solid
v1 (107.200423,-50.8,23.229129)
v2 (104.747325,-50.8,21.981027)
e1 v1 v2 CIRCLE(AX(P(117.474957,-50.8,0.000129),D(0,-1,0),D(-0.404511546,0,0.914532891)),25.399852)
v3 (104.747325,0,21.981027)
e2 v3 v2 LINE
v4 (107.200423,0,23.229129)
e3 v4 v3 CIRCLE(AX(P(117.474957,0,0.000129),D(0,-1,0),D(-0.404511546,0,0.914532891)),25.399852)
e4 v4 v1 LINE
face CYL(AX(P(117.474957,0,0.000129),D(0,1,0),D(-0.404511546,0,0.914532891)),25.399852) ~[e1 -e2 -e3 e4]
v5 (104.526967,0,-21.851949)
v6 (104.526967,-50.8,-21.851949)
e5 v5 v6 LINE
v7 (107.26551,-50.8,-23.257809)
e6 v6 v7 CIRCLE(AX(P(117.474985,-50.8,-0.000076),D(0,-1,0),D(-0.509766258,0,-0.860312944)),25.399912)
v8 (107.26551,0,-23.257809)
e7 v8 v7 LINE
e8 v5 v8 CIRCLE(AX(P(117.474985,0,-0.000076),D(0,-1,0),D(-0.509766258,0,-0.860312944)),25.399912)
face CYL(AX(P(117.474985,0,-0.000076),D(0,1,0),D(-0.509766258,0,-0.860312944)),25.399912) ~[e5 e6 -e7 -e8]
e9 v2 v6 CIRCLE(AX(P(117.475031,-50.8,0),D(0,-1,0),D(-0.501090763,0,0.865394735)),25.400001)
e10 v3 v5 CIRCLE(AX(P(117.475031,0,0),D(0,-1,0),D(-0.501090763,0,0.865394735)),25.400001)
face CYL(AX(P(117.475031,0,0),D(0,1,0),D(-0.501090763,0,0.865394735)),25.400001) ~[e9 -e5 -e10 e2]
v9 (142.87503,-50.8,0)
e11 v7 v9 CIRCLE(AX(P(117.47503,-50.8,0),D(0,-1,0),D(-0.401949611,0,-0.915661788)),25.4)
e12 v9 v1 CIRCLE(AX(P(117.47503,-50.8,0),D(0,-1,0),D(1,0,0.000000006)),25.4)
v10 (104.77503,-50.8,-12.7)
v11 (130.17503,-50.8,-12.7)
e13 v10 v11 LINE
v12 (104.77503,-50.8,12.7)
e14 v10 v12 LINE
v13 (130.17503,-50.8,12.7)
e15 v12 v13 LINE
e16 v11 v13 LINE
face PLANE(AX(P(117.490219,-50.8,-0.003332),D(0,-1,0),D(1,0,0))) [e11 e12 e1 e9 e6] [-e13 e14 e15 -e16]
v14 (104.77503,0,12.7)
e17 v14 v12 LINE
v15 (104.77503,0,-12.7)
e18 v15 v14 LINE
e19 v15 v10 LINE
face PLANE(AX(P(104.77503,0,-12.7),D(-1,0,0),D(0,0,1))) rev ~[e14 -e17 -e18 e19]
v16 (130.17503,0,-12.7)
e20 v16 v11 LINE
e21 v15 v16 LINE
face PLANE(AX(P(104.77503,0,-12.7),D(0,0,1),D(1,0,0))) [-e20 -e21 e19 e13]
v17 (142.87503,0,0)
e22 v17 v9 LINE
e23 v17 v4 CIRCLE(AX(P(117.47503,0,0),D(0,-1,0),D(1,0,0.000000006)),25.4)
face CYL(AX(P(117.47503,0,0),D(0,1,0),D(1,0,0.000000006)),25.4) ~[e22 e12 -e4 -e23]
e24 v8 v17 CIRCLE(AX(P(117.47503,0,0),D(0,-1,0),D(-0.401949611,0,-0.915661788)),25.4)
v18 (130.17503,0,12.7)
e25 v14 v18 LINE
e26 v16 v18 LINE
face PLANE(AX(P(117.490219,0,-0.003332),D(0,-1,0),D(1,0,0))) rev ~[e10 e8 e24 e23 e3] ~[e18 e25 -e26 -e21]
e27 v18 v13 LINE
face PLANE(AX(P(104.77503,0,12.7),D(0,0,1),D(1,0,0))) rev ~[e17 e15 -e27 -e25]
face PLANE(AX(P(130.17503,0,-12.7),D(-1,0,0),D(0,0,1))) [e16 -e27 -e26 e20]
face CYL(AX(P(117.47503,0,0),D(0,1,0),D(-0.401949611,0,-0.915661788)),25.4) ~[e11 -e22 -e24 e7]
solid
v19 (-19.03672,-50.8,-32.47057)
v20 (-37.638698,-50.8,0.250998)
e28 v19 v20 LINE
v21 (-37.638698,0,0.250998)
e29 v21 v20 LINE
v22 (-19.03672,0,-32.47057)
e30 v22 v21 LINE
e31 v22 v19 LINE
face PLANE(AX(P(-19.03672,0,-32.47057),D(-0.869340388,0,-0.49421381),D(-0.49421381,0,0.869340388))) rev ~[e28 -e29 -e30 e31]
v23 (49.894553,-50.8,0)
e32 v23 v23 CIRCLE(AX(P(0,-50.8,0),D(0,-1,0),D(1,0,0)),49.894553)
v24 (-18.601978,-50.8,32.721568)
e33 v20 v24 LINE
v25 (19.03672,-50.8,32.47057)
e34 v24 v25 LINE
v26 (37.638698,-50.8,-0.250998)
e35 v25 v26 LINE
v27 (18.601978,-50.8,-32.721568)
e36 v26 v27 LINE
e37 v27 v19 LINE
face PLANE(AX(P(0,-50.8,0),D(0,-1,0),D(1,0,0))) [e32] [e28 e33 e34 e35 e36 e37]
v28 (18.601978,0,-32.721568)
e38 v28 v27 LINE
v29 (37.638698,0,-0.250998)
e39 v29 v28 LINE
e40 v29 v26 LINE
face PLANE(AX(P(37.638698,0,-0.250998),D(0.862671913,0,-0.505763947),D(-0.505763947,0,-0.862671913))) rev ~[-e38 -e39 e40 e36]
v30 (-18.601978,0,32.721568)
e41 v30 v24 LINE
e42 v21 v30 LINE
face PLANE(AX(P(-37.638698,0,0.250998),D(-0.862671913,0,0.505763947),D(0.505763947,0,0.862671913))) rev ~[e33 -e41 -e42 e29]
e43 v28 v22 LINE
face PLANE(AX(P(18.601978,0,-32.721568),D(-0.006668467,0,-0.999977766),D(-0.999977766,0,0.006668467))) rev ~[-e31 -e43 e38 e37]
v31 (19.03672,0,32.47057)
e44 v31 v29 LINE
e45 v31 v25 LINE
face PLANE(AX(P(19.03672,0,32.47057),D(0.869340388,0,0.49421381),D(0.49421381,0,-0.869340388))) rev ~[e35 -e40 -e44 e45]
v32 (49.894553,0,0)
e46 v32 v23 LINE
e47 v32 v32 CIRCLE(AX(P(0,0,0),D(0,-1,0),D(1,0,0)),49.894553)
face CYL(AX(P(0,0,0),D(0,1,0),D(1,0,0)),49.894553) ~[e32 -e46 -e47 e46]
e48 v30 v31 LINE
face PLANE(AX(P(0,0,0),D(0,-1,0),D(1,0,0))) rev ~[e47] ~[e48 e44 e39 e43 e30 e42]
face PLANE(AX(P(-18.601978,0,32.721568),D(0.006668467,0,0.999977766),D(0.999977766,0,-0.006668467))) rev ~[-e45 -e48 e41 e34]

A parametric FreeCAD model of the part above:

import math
import FreeCAD as App
import Part
import Sketcher

V = App.Vector
Q = App.Units.Quantity


def add_polygon(sketch, points):
    """Adds a closed chain of lines whose ends are joined by coincident constraints."""
    first, n = sketch.GeometryCount, len(points)
    for a, b in zip(points, points[1:] + points[:1]):
        sketch.addGeometry(Part.LineSegment(App.Vector(*a, 0), App.Vector(*b, 0)), False)
    for i in range(n):
        sketch.addConstraint(Sketcher.Constraint("Coincident", first + i, 2, first + (i + 1) % n, 1))

doc = App.newDocument("Part")
body = doc.addObject("PartDesign::Body", "Body")
body.AllowCompound = True

# Sketch on XZ plane
sketch1 = body.newObject("Sketcher::SketchObject", "Sketch")
sketch1.AttachmentSupport = (doc.getObject("XZ_Plane"), [""])
sketch1.MapMode = "FlatFace"
sketch1.addGeometry(Part.Circle(V(0, 0, 0), V(0, 0, 1), 49.894553), False)  # 0
add_polygon(sketch1, [(-19.03672, -32.47057), (-37.638698, 0.250998), (-18.601978, 32.721568), (19.03672, 32.47057), (37.638698, -0.250998), (18.601978, -32.721568)])  # lines 1-6
sketch1.addGeometry(Part.ArcOfCircle(Part.Circle(V(117.47503, 0, 0), V(0, 0, 1), 25.4), math.radians(-113.700115), math.radians(-0.000001)), False)  # 7
sketch1.addGeometry(Part.ArcOfCircle(Part.Circle(V(117.47503, 0, 0), V(0, 0, 1), 25.4), math.radians(0), math.radians(113.860556)), False)  # 8
sketch1.addGeometry(Part.ArcOfCircle(Part.Circle(V(117.474957, 0.000129, 0), V(0, 0, 1), 25.399852), math.radians(113.860522), math.radians(120.072191)), False)  # 9
sketch1.addGeometry(Part.ArcOfCircle(Part.Circle(V(117.475031, 0, 0), V(0, 0, 1), 25.400001), math.radians(120.072191), math.radians(239.351737)), False)  # 10
sketch1.addGeometry(Part.ArcOfCircle(Part.Circle(V(117.474985, -0.000076, 0), V(0, 0, 1), 25.399912), math.radians(-120.648262), math.radians(-113.700091)), False)  # 11
add_polygon(sketch1, [(130.17503, -12.7), (104.77503, -12.7), (104.77503, 12.7), (130.17503, 12.7)])  # lines 12-15
sketch1.addConstraint(Sketcher.Constraint("Coincident", 7, 2, 8, 1))
sketch1.addConstraint(Sketcher.Constraint("Coincident", 8, 2, 9, 1))
sketch1.addConstraint(Sketcher.Constraint("Coincident", 9, 2, 10, 1))
sketch1.addConstraint(Sketcher.Constraint("Coincident", 10, 2, 11, 1))
sketch1.addConstraint(Sketcher.Constraint("Coincident", 11, 2, 7, 1))
sketch1.addConstraint(Sketcher.Constraint("Horizontal", 12))
sketch1.addConstraint(Sketcher.Constraint("Vertical", 13))
sketch1.addConstraint(Sketcher.Constraint("Horizontal", 14))
sketch1.addConstraint(Sketcher.Constraint("Vertical", 15))
sketch1.addConstraint(Sketcher.Constraint("Coincident", 0, 3, -1, 1))
sketch1.addConstraint(Sketcher.Constraint("Coincident", 8, 3, 7, 3))
sketch1.addConstraint(Sketcher.Constraint("Coincident", 10, 3, 7, 3))
sketch1.addConstraint(Sketcher.Constraint("PointOnObject", 7, 3, -1))
sketch1.addConstraint(Sketcher.Constraint("PointOnObject", 7, 2, -1))
sketch1.addConstraint(Sketcher.Constraint("Radius", 7, Q("1 in")))
sketch1.addConstraint(Sketcher.Constraint("Radius", 10, Q("1 in")))
sketch1.addConstraint(Sketcher.Constraint("DistanceX", 12, 2, 12, 1, Q("1 in")))
sketch1.addConstraint(Sketcher.Constraint("DistanceY", 13, 1, 13, 2, Q("1 in")))
sketch1.addConstraint(Sketcher.Constraint("DistanceY", 12, 2, -1, 1, Q("0.5 in")))
sketch1.addConstraint(Sketcher.Constraint("DistanceX", 12, 2, 8, 3, Q("0.5 in")))
sketch1.addConstraint(Sketcher.Constraint("Diameter", 0, Q("99.789106 mm")))
sketch1.addConstraint(Sketcher.Constraint("Radius", 9, Q("25.399852 mm")))
sketch1.addConstraint(Sketcher.Constraint("Radius", 11, Q("25.399912 mm")))
sketch1.addConstraint(Sketcher.Constraint("DistanceX", 2, 2, 4, 2, Q("2.2141998 in")))
sketch1.addConstraint(Sketcher.Constraint("DistanceX", 1, 2, 5, 2, Q("2.2141998 in")))
sketch1.addConstraint(Sketcher.Constraint("DistanceY", 8, 3, 1, 2, Q("0.250998 mm")))
sketch1.addConstraint(Sketcher.Constraint("DistanceY", 9, 3, 8, 2, Q("23.229 mm")))
sketch1.addConstraint(Sketcher.Constraint("DistanceX", 9, 2, 8, 2, Q("2.453098 mm")))
sketch1.addConstraint(Sketcher.Constraint("DistanceX", -1, 1, 7, 3, Q("117.47503 mm")))
sketch1.addConstraint(Sketcher.Constraint("DistanceX", -1, 1, 3, 2, Q("19.03672 mm")))
sketch1.addConstraint(Sketcher.Constraint("DistanceY", -1, 1, 3, 2, Q("32.47057 mm")))
sketch1.addConstraint(Sketcher.Constraint("DistanceX", 6, 2, -1, 1, Q("19.03672 mm")))
sketch1.addConstraint(Sketcher.Constraint("DistanceY", 6, 2, -1, 1, Q("32.47057 mm")))
sketch1.addConstraint(Sketcher.Constraint("DistanceY", 10, 2, -1, 1, Q("21.851949 mm")))
sketch1.addConstraint(Sketcher.Constraint("DistanceX", -1, 1, 11, 2, Q("107.26551 mm")))
sketch1.addConstraint(Sketcher.Constraint("DistanceX", 1, 2, 7, 3, Q("155.113728 mm")))
sketch1.addConstraint(Sketcher.Constraint("DistanceX", 1, 2, 2, 2, Q("19.03672 mm")))
sketch1.addConstraint(Sketcher.Constraint("DistanceY", 1, 2, 2, 2, Q("32.47057 mm")))
sketch1.addConstraint(Sketcher.Constraint("DistanceY", 4, 2, 3, 2, Q("32.721568 mm")))
sketch1.addConstraint(Sketcher.Constraint("DistanceY", 5, 2, 4, 2, Q("32.47057 mm")))
pad1 = body.newObject("PartDesign::Pad", "Pad")
pad1.Profile = sketch1
pad1.Length = Q("2 in")

doc.recompute()
